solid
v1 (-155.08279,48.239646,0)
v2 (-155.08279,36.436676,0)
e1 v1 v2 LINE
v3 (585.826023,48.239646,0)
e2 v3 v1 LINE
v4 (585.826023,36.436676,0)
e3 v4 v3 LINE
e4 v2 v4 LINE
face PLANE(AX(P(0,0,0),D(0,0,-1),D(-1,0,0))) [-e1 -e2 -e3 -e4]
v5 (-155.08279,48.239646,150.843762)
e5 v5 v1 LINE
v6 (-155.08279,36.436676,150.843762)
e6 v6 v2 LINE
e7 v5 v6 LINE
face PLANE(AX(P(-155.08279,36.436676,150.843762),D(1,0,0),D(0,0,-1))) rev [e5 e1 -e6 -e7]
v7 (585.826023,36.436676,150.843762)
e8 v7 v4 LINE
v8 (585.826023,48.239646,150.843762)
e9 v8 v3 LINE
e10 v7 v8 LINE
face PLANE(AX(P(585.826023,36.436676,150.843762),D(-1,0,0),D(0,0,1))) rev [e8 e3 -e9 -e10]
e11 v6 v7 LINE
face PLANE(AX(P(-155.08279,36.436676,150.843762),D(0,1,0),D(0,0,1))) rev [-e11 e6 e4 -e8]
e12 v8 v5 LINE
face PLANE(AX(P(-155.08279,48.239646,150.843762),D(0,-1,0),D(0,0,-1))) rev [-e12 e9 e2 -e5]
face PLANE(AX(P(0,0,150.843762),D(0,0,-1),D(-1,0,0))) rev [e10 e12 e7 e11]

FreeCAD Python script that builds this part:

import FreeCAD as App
import Part
import Sketcher
from FreeCAD import Vector
Q = App.Units.Quantity


def add_polygon(sketch, points):
    """Adds a closed chain of lines whose ends are joined by coincident constraints."""
    first, n = sketch.GeometryCount, len(points)
    for a, b in zip(points, points[1:] + points[:1]):
        sketch.addGeometry(Part.LineSegment(App.Vector(*a, 0), App.Vector(*b, 0)), False)
    for i in range(n):
        sketch.addConstraint(Sketcher.Constraint("Coincident", first + i, 2, first + (i + 1) % n, 1))

doc = App.newDocument("Part")
params = doc.addObject("Spreadsheet::Sheet", "Params")
for row, (alias, value) in enumerate([
    ("pad1_length", "150.843762 mm"),
], start=1):
    params.set(f"A{row}", alias)
    params.set(f"B{row}", "=" + value)
    params.setAlias(f"B{row}", alias)

body = doc.addObject("PartDesign::Body", "Body")

# Sketch on XY plane
sketch1 = body.newObject("Sketcher::SketchObject", "Sketch")
sketch1.AttachmentSupport = (doc.getObject("XY_Plane"), [""])
sketch1.MapMode = "FlatFace"
add_polygon(sketch1, [(-155, 48), (-155, 36), (586, 36), (586, 48)])  # lines 0-3
sketch1.addConstraint([
    Sketcher.Constraint("Vertical", 0),
    Sketcher.Constraint("Horizontal", 1),
    Sketcher.Constraint("Vertical", 2),
    Sketcher.Constraint("Horizontal", 3),
    Sketcher.Constraint("DistanceY", 0, 2, 0, 1, Q("11.80297 mm")),
    Sketcher.Constraint("DistanceX", 1, 1, 1, 2, Q("740.908813 mm")),
    Sketcher.Constraint("DistanceX", 0, 2, -1, 1, Q("155.08279 mm")),
    Sketcher.Constraint("DistanceY", -1, 1, 0, 2, Q("36.436676 mm")),
])
pad1 = body.newObject("PartDesign::Pad", "Pad")
pad1.Profile = sketch1
pad1.setExpression("Length", "Params.pad1_length")

doc.recompute()
